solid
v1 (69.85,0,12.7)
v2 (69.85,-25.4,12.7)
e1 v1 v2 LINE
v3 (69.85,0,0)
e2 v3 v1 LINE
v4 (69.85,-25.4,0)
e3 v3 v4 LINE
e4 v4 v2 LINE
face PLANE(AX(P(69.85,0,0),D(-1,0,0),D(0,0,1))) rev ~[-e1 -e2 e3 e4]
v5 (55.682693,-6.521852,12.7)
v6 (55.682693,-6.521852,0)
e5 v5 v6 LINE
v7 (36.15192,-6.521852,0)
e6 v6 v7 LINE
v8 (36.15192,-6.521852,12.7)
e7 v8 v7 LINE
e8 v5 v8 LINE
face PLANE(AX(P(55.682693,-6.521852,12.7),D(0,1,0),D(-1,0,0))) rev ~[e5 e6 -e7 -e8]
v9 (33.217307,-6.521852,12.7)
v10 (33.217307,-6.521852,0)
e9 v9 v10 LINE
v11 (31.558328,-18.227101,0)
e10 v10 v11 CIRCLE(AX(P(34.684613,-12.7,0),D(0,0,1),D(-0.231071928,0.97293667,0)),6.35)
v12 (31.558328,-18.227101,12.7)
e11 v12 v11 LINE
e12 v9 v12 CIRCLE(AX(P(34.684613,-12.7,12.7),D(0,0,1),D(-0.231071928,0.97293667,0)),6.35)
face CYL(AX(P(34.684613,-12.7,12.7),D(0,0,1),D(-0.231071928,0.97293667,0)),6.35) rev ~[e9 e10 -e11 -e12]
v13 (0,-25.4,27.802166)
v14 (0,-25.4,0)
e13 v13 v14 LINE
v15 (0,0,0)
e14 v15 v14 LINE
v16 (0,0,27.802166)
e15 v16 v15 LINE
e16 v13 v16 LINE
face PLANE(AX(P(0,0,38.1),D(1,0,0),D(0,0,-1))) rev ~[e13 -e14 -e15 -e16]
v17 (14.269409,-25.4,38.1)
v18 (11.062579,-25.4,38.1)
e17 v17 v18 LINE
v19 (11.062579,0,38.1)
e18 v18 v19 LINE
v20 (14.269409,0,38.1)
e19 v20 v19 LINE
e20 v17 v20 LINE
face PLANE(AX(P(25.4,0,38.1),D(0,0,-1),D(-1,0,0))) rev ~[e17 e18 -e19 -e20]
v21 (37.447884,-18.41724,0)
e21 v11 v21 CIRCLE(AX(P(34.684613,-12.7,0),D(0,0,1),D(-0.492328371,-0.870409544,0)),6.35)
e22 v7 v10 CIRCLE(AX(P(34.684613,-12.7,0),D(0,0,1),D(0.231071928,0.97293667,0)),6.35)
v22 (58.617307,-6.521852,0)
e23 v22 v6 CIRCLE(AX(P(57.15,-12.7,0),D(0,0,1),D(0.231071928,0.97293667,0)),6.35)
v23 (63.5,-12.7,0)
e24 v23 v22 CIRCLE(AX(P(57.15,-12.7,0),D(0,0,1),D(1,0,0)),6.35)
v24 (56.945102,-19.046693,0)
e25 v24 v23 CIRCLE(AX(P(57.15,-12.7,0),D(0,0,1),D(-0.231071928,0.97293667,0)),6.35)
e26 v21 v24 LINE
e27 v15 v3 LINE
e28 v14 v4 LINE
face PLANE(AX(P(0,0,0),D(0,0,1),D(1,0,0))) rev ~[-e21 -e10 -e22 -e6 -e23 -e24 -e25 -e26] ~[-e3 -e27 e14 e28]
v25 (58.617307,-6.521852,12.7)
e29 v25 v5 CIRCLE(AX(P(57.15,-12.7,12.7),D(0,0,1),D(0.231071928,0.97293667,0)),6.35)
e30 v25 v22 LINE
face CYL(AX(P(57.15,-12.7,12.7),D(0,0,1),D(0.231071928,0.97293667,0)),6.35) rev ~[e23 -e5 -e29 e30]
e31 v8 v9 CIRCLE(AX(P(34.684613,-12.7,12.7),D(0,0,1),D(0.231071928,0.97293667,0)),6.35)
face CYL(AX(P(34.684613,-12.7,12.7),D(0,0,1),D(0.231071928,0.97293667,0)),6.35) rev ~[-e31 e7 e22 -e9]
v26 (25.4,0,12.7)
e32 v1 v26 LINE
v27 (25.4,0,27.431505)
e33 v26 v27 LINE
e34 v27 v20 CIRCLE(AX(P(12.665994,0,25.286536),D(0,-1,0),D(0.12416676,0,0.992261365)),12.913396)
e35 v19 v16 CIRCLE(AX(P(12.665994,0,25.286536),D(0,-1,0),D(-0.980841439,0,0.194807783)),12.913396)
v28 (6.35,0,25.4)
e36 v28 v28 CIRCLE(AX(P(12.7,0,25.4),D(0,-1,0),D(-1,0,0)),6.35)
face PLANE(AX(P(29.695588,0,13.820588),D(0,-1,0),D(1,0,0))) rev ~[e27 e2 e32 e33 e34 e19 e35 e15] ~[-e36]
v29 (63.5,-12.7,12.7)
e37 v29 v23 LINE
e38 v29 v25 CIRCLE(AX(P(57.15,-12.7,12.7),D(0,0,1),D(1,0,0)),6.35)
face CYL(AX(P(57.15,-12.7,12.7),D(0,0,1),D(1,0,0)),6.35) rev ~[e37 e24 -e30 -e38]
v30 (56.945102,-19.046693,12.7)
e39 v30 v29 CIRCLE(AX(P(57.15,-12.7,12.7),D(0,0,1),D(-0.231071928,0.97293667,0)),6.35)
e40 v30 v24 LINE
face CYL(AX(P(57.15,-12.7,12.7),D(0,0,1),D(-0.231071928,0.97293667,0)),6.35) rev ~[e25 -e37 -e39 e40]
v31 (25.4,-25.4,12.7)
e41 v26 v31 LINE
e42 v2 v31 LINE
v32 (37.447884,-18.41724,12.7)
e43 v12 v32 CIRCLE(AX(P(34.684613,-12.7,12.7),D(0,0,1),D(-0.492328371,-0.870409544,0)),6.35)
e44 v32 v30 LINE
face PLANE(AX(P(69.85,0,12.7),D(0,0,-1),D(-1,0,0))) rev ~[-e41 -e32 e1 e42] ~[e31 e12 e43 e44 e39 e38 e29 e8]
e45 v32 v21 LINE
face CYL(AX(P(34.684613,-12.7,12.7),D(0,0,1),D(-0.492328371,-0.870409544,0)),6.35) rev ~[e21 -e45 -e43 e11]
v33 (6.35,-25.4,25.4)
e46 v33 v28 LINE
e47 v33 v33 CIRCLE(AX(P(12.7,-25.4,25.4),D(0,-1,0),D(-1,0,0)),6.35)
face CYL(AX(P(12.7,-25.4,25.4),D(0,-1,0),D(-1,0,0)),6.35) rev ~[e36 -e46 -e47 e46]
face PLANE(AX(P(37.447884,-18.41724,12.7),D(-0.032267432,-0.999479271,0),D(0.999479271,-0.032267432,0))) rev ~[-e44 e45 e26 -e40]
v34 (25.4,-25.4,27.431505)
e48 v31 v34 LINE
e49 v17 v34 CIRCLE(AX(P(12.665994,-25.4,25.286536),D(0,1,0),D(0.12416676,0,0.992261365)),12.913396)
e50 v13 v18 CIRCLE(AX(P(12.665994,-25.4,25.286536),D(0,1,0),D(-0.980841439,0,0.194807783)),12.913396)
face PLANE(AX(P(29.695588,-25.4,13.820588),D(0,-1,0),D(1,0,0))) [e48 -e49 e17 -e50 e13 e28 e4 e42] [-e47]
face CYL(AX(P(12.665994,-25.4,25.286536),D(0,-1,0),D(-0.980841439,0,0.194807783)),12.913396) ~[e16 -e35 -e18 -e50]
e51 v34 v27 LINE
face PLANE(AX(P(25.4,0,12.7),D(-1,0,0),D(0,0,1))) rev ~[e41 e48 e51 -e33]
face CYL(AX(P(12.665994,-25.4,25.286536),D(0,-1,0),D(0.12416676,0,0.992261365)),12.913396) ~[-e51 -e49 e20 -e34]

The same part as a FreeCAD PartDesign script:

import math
import FreeCAD as App
import Part
import Sketcher
Q = App.Units.Quantity

doc = App.newDocument("Part")
body = doc.addObject("PartDesign::Body", "Body")

# Sketch on XZ plane
sketch1 = body.newObject("Sketcher::SketchObject", "Sketch")
sketch1.AttachmentSupport = (doc.getObject("XZ_Plane"), [""])
sketch1.MapMode = "FlatFace"
sketch1.addGeometry([
    Part.LineSegment(App.Vector(25, 38, 0), App.Vector(0, 38, 0)),  # 0
    Part.LineSegment(App.Vector(0, 38, 0), App.Vector(0, 0, 0)),  # 1
    Part.LineSegment(App.Vector(0, 0, 0), App.Vector(70, 0, 0)),  # 2
    Part.LineSegment(App.Vector(70, 0, 0), App.Vector(70, 13, 0)),  # 3
    Part.LineSegment(App.Vector(70, 13, 0), App.Vector(25, 13, 0)),  # 4
    Part.LineSegment(App.Vector(25, 13, 0), App.Vector(25, 38, 0)),  # 5
], False)
sketch1.addConstraint([
    Sketcher.Constraint("Coincident", 0, 2, 1, 1),
    Sketcher.Constraint("Coincident", 1, 2, 2, 1),
    Sketcher.Constraint("Coincident", 2, 2, 3, 1),
    Sketcher.Constraint("Coincident", 3, 2, 4, 1),
    Sketcher.Constraint("Coincident", 4, 2, 5, 1),
    Sketcher.Constraint("Coincident", 5, 2, 0, 1),
    Sketcher.Constraint("Horizontal", 0),
    Sketcher.Constraint("Vertical", 1),
    Sketcher.Constraint("Horizontal", 2),
    Sketcher.Constraint("Vertical", 3),
    Sketcher.Constraint("Horizontal", 4),
    Sketcher.Constraint("Vertical", 5),
    Sketcher.Constraint("Coincident", 1, 2, -1, 1),
    Sketcher.Constraint("Equal", 0, 5),
    Sketcher.Constraint("DistanceX", 0, 2, 0, 1, Q("1 in")),
    Sketcher.Constraint("DistanceY", 1, 2, 1, 1, Q("1.5 in")),
    Sketcher.Constraint("DistanceX", 2, 1, 2, 2, Q("2.75 in")),
])
pad1 = body.newObject("PartDesign::Pad", "Pad")
pad1.Profile = sketch1
pad1.Length = Q("1 in")

# Sketch on XZ plane
sketch2 = body.newObject("Sketcher::SketchObject", "Sketch001")
sketch2.AttachmentSupport = (doc.getObject("XZ_Plane"), [""])
sketch2.MapMode = "FlatFace"
sketch2.AttachmentOffset = App.Placement(App.Vector(0, 0, 1 * 25.4), App.Rotation())
sketch2.addGeometry(Part.Circle(App.Vector(13, 25, 0), App.Vector(0, 0, 1), 6), False)
sketch2.addConstraint([
    Sketcher.Constraint("Diameter", 0, Q("0.5 in")),
    Sketcher.Constraint("DistanceY", -1, 1, 0, 3, Q("1 in")),
    Sketcher.Constraint("DistanceX", -1, 1, 0, 3, Q("0.5 in")),
])
pocket1 = body.newObject("PartDesign::Pocket", "Pocket")
pocket1.Profile = sketch2
pocket1.Type = "ThroughAll"

# Sketch on XZ plane
sketch3 = body.newObject("Sketcher::SketchObject", "Sketch002")
sketch3.AttachmentSupport = (doc.getObject("XZ_Plane"), [""])
sketch3.MapMode = "FlatFace"
sketch3.AttachmentOffset = App.Placement(App.Vector(0, 0, 1 * 25.4), App.Rotation())
sketch3.addGeometry([
    Part.ArcOfCircle(Part.Circle(App.Vector(13, 25, 0), App.Vector(0, 0, 1), 13), math.radians(97), math.radians(169)),  # 0
    Part.LineSegment(App.Vector(11, 38, 0), App.Vector(0, 38, 0)),  # 1
    Part.LineSegment(App.Vector(0, 38, 0), App.Vector(0, 28, 0)),  # 2
    Part.ArcOfCircle(Part.Circle(App.Vector(13, 25, 0), App.Vector(0, 0, 1), 13), math.radians(10), math.radians(83)),  # 3
    Part.LineSegment(App.Vector(25, 27, 0), App.Vector(25, 38, 0)),  # 4
    Part.LineSegment(App.Vector(25, 38, 0), App.Vector(14, 38, 0)),  # 5
], False)
sketch3.addConstraint([
    Sketcher.Constraint("Coincident", 0, 1, 1, 1),
    Sketcher.Constraint("Coincident", 1, 2, 2, 1),
    Sketcher.Constraint("Coincident", 2, 2, 0, 2),
    Sketcher.Constraint("Coincident", 3, 1, 4, 1),
    Sketcher.Constraint("Coincident", 4, 2, 5, 1),
    Sketcher.Constraint("Coincident", 5, 2, 3, 2),
    Sketcher.Constraint("Horizontal", 1),
    Sketcher.Constraint("Vertical", 2),
    Sketcher.Constraint("Vertical", 4),
    Sketcher.Constraint("Horizontal", 5),
    Sketcher.Constraint("Coincident", 3, 3, 0, 3),
    Sketcher.Constraint("Equal", 0, 3),
    Sketcher.Constraint("PointOnObject", 1, 2, -2),
    Sketcher.Constraint("Horizontal", 1, 2, 4, 2),
    Sketcher.Constraint("DistanceX", -1, 1, 3, 1, Q("1 in")),
    Sketcher.Constraint("DistanceY", -1, 1, 0, 1, Q("1.5 in")),
    Sketcher.Constraint("Radius", 0, Q("12.913396 mm")),
    Sketcher.Constraint("DistanceX", 1, 2, 1, 1, Q("11.062579 mm")),
    Sketcher.Constraint("DistanceX", 5, 2, 5, 1, Q("11.130591 mm")),
])
pocket2 = body.newObject("PartDesign::Pocket", "Pocket001")
pocket2.Profile = sketch3
pocket2.Type = "ThroughAll"

# Sketch on XY plane
sketch4 = body.newObject("Sketcher::SketchObject", "Sketch003")
sketch4.AttachmentSupport = (doc.getObject("XY_Plane"), [""])
sketch4.MapMode = "FlatFace"
sketch4.AttachmentOffset = App.Placement(App.Vector(0, 0, 0.5 * 25.4), App.Rotation())
sketch4.addGeometry([
    Part.ArcOfCircle(Part.Circle(App.Vector(57.1, -12.7, 0), App.Vector(0, 0, 1), 6.3), math.radians(0), math.radians(77)),  # 0
    Part.ArcOfCircle(Part.Circle(App.Vector(57.1, -12.7, 0), App.Vector(0, 0, 1), 6.3), math.radians(77), math.radians(103)),  # 1
    Part.LineSegment(App.Vector(55.7, -6.5, 0), App.Vector(36.2, -6.5, 0)),  # 2
    Part.ArcOfCircle(Part.Circle(App.Vector(34.7, -12.7, 0), App.Vector(0, 0, 1), 6.3), math.radians(77), math.radians(103)),  # 3
    Part.ArcOfCircle(Part.Circle(App.Vector(34.7, -12.7, 0), App.Vector(0, 0, 1), 6.3), math.radians(103), math.radians(241)),  # 4
    Part.ArcOfCircle(Part.Circle(App.Vector(34.7, -12.7, 0), App.Vector(0, 0, 1), 6.3), math.radians(-119), math.radians(-64)),  # 5
    Part.LineSegment(App.Vector(37.4, -18.4, 0), App.Vector(56.9, -19, 0)),  # 6
    Part.ArcOfCircle(Part.Circle(App.Vector(57.1, -12.7, 0), App.Vector(0, 0, 1), 6.3), math.radians(-92), math.radians(0)),  # 7
], False)
sketch4.addConstraint([
    Sketcher.Constraint("Tangent", 0, 2, 1, 1),
    Sketcher.Constraint("Coincident", 1, 2, 2, 1),
    Sketcher.Constraint("Coincident", 2, 2, 3, 1),
    Sketcher.Constraint("Tangent", 3, 2, 4, 1),
    Sketcher.Constraint("Tangent", 4, 2, 5, 1),
    Sketcher.Constraint("Coincident", 5, 2, 6, 1),
    Sketcher.Constraint("Tangent", 6, 2, 7, 1),
    Sketcher.Constraint("Tangent", 7, 2, 0, 1),
    Sketcher.Constraint("Horizontal", 2),
    Sketcher.Constraint("Coincident", 5, 3, 3, 3),
    Sketcher.Constraint("Equal", 0, 1),
    Sketcher.Constraint("Equal", 1, 3),
    Sketcher.Constraint("Equal", 5, 7),
    Sketcher.Constraint("Horizontal", 1, 3, 3, 3),
    Sketcher.Constraint("Horizontal", 0, 2, 1, 2),
    Sketcher.Constraint("Horizontal", 2, 2, 3, 2),
    Sketcher.Constraint("Horizontal", 5, 3, 7, 2),
    Sketcher.Constraint("Radius", 0, Q("0.25 in")),
    Sketcher.Constraint("DistanceY", 0, 3, -1, 1, Q("0.5 in")),
    Sketcher.Constraint("DistanceX", -1, 1, 7, 2, Q("2.5 in")),
    Sketcher.Constraint("DistanceY", 4, 2, -1, 1, Q("18.227101 mm")),
    Sketcher.Constraint("DistanceX", -1, 1, 6, 2, Q("56.945102 mm")),
    Sketcher.Constraint("DistanceX", 2, 2, 2, 1, Q("19.530773 mm")),
    Sketcher.Constraint("DistanceX", -1, 1, 2, 2, Q("36.15192 mm")),
])
pocket3 = body.newObject("PartDesign::Pocket", "Pocket002")
pocket3.Profile = sketch4
pocket3.Type = "ThroughAll"

doc.recompute()
